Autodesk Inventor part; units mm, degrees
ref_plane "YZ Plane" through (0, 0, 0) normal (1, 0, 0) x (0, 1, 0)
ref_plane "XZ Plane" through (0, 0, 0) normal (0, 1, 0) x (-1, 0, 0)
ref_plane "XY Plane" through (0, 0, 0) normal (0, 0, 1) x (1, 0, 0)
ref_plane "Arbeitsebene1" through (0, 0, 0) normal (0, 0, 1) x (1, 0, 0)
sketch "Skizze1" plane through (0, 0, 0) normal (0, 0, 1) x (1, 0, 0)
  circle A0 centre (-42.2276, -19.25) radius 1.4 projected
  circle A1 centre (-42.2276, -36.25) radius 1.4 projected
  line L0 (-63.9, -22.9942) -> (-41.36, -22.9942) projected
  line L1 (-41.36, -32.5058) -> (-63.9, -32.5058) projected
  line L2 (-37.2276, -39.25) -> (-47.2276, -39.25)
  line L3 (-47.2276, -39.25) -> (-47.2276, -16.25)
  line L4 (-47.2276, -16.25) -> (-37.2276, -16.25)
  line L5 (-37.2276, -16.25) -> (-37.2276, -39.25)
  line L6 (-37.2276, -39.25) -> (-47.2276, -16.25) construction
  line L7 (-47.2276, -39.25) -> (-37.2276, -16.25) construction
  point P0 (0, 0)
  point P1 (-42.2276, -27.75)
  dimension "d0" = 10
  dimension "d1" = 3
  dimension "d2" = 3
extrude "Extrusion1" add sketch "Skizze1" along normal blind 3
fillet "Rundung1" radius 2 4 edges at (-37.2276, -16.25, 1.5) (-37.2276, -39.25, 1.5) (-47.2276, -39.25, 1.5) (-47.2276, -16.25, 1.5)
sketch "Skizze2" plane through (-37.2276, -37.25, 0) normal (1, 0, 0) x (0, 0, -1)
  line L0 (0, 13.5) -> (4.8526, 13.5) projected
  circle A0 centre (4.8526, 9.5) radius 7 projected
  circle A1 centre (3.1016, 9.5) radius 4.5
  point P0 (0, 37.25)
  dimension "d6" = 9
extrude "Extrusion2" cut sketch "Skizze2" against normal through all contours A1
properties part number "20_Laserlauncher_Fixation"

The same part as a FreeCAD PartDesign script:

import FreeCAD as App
import Part
import Sketcher

V = App.Vector


def edges_at(feature, points):
    """Names of the edges that pass closest to the given points."""
    edges = feature.Shape.Edges
    near = lambda p: min(range(len(edges)), key=lambda i: edges[i].distToShape(Part.Vertex(*p))[0])
    return sorted({f"Edge{near(p) + 1}" for p in points})


def add_polygon(sketch, points):
    """Adds a closed chain of lines whose ends are joined by coincident constraints."""
    first, n = sketch.GeometryCount, len(points)
    for a, b in zip(points, points[1:] + points[:1]):
        sketch.addGeometry(Part.LineSegment(App.Vector(*a, 0), App.Vector(*b, 0)), False)
    for i in range(n):
        sketch.addConstraint(Sketcher.Constraint("Coincident", first + i, 2, first + (i + 1) % n, 1))

doc = App.newDocument("Part")
body = doc.addObject("PartDesign::Body", "Body")

sketch1 = body.newObject("Sketcher::SketchObject", "Sketch")
sketch1.AttachmentSupport = (doc.getObject("XY_Plane"), [""])
sketch1.MapMode = "FlatFace"
add_polygon(sketch1, [(-47.2, -39.2), (-37.2, -39.2), (-37.2, -16.2), (-47.2, -16.2)])
sketch1.addGeometry(Part.Circle(V(-42.2, -36.2, 0), V(0, 0, 1), 1.4), False)
sketch1.addGeometry(Part.Circle(V(-42.2, -19.2, 0), V(0, 0, 1), 1.4), False)
sketch1.addConstraint(Sketcher.Constraint("Horizontal", 0))
sketch1.addConstraint(Sketcher.Constraint("Vertical", 1))
sketch1.addConstraint(Sketcher.Constraint("Horizontal", 2))
sketch1.addConstraint(Sketcher.Constraint("Vertical", 3))
sketch1.addConstraint(Sketcher.Constraint("Equal", 4, 5))
sketch1.addConstraint(Sketcher.Constraint("Vertical", 4, 3, 5, 3))
sketch1.addConstraint(Sketcher.Constraint("DistanceX", 0, 1, 0, 2, 10.0))
sketch1.addConstraint(Sketcher.Constraint("DistanceY", 0, 2, 4, 3, 3.0))
sketch1.addConstraint(Sketcher.Constraint("DistanceY", 5, 3, 1, 2, 3.0))
sketch1.addConstraint(Sketcher.Constraint("Diameter", 4, 2.8))
sketch1.addConstraint(Sketcher.Constraint("DistanceY", 1, 1, 1, 2, 23.0))
sketch1.addConstraint(Sketcher.Constraint("DistanceX", 4, 3, 0, 2, 5.0))
sketch1.addConstraint(Sketcher.Constraint("DistanceY", 4, 3, -1, 1, 36.25))
sketch1.addConstraint(Sketcher.Constraint("DistanceX", 4, 3, -1, 1, 42.2276))
pad1 = body.newObject("PartDesign::Pad", "Pad")
pad1.Profile = sketch1
pad1.Length = 3
doc.recompute()

fillet = body.newObject("PartDesign::Fillet", "Fillet")
fillet.Base = (pad1, edges_at(pad1, [
    (-37.228, -16.25, 1.5),
    (-37.228, -39.25, 1.5),
    (-47.228, -39.25, 1.5),
    (-47.228, -16.25, 1.5),
]))
fillet.Radius = 2

sketch2 = body.newObject("Sketcher::SketchObject", "Sketch001")
sketch2.AttachmentSupport = (doc.getObject("YZ_Plane"), [""])
sketch2.MapMode = "FlatFace"
sketch2.AttachmentOffset = App.Placement(V(0, 0, -37.2276), App.Rotation())
sketch2.addGeometry(Part.Circle(V(-27.8, -3.1, 0), V(0, 0, 1), 4.5), False)
sketch2.addConstraint(Sketcher.Constraint("Diameter", 0, 9.0))
sketch2.addConstraint(Sketcher.Constraint("DistanceX", 0, 3, -1, 1, 27.75))
sketch2.addConstraint(Sketcher.Constraint("DistanceY", 0, 3, -1, 1, 3.1016))
pocket1 = body.newObject("PartDesign::Pocket", "Pocket")
pocket1.Profile = sketch2
pocket1.Type = "ThroughAll"

doc.recompute()
